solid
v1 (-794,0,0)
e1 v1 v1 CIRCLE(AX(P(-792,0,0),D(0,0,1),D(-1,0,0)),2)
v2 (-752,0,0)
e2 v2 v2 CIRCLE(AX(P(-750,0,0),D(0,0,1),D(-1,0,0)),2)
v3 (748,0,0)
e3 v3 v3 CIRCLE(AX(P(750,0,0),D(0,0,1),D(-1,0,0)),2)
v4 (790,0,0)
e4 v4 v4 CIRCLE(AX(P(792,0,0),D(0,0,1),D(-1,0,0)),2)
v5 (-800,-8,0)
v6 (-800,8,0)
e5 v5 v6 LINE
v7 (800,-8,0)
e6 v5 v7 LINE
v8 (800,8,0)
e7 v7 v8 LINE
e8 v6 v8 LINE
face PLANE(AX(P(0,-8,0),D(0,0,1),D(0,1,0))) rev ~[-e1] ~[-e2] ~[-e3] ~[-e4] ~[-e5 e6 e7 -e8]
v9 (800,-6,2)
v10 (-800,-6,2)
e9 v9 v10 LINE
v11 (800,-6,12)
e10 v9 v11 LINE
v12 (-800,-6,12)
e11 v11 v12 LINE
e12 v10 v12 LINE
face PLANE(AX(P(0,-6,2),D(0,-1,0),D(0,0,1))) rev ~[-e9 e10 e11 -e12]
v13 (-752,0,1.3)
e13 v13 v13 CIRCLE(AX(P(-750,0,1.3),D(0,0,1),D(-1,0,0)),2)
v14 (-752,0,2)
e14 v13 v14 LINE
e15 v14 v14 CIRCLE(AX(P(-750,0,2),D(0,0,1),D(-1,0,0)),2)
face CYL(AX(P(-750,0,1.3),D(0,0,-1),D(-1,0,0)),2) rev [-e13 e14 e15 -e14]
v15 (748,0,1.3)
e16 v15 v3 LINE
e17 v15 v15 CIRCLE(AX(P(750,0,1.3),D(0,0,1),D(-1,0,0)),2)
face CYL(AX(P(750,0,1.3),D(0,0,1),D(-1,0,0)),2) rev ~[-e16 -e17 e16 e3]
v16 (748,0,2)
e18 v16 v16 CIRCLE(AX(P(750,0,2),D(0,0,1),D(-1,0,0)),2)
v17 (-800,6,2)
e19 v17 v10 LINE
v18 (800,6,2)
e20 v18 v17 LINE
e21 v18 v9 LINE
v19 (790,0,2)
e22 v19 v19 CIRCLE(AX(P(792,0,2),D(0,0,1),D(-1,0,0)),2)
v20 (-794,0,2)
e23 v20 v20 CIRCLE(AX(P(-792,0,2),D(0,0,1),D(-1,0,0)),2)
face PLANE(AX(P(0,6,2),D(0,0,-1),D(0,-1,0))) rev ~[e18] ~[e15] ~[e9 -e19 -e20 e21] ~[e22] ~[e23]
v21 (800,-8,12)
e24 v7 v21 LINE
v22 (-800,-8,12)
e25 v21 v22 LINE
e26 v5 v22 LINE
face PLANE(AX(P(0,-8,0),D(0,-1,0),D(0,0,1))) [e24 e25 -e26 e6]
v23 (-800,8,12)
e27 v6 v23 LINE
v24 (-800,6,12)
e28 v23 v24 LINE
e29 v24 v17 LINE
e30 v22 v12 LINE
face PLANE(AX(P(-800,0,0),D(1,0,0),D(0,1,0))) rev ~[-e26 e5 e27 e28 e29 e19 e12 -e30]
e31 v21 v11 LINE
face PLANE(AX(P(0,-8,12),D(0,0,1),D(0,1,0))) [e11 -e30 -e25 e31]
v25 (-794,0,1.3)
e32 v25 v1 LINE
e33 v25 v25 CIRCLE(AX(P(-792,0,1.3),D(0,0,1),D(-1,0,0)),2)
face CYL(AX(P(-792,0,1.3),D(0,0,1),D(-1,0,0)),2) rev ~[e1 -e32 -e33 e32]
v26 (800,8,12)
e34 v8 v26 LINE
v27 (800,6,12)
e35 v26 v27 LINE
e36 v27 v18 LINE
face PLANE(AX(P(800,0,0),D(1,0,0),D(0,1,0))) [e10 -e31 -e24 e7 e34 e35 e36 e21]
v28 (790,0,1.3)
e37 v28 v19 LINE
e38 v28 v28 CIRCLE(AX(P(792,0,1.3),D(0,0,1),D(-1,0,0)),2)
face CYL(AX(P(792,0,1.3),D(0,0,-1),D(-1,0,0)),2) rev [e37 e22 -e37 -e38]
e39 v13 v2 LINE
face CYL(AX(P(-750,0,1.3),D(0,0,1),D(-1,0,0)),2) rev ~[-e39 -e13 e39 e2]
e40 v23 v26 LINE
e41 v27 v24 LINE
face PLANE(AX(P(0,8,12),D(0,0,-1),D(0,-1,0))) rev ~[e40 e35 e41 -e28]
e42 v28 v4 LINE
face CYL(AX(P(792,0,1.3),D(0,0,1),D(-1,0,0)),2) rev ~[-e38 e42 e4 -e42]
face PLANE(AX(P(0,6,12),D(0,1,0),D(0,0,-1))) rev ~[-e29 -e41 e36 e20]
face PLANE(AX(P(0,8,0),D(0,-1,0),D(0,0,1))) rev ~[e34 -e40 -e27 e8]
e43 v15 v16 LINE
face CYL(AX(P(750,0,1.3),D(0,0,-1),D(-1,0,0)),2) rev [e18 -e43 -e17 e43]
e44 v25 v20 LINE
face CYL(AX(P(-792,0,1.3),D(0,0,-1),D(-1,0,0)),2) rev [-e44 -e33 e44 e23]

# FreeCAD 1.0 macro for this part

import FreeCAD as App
import Part
import Sketcher

V = App.Vector
Q = App.Units.Quantity

doc = App.newDocument("Part")
body = doc.addObject("PartDesign::Body", "Body")

# Sketch on YZ plane
sketch1 = body.newObject("Sketcher::SketchObject", "Sketch")
sketch1.AttachmentSupport = (doc.getObject("YZ_Plane"), [""])
sketch1.MapMode = "FlatFace"
sketch1.addGeometry([
    Part.LineSegment(V(-8, 12, 0), V(-8, 0, 0)),  # 0
    Part.LineSegment(V(-8, 0, 0), V(8, 0, 0)),  # 1
    Part.LineSegment(V(8, 0, 0), V(8, 12, 0)),  # 2
    Part.LineSegment(V(8, 12, 0), V(6, 12, 0)),  # 3
    Part.LineSegment(V(6, 12, 0), V(6, 2, 0)),  # 4
    Part.LineSegment(V(6, 2, 0), V(-6, 2, 0)),  # 5
    Part.LineSegment(V(-6, 2, 0), V(-6, 12, 0)),  # 6
    Part.LineSegment(V(-6, 12, 0), V(-8, 12, 0)),  # 7
], False)
sketch1.addConstraint([
    Sketcher.Constraint("Coincident", 0, 2, 1, 1),
    Sketcher.Constraint("Coincident", 1, 2, 2, 1),
    Sketcher.Constraint("Coincident", 2, 2, 3, 1),
    Sketcher.Constraint("Coincident", 3, 2, 4, 1),
    Sketcher.Constraint("Coincident", 4, 2, 5, 1),
    Sketcher.Constraint("Coincident", 5, 2, 6, 1),
    Sketcher.Constraint("Coincident", 6, 2, 7, 1),
    Sketcher.Constraint("Coincident", 7, 2, 0, 1),
    Sketcher.Constraint("Vertical", 0),
    Sketcher.Constraint("Horizontal", 1),
    Sketcher.Constraint("Vertical", 2),
    Sketcher.Constraint("Horizontal", 3),
    Sketcher.Constraint("Vertical", 4),
    Sketcher.Constraint("Horizontal", 5),
    Sketcher.Constraint("Vertical", 6),
    Sketcher.Constraint("Horizontal", 7),
    Sketcher.Constraint("Symmetric", 0, 2, 1, 2, -1, 1),
    Sketcher.Constraint("Symmetric", 3, 2, 6, 2, -2),
    Sketcher.Constraint("Equal", 5, 0),
    Sketcher.Constraint("DistanceX", 1, 1, 1, 2, Q("16 mm")),
    Sketcher.Constraint("DistanceX", 3, 2, 3, 1, Q("2 mm")),
    Sketcher.Constraint("DistanceY", 4, 2, 4, 1, Q("10 mm")),
])
pad1 = body.newObject("PartDesign::Pad", "Pad")
pad1.Profile = sketch1
pad1.Length = 1600
pad1.Midplane = True

# Sketch on XY plane
sketch2 = body.newObject("Sketcher::SketchObject", "Sketch001")
sketch2.AttachmentSupport = (doc.getObject("XY_Plane"), [""])
sketch2.MapMode = "FlatFace"
sketch2.AttachmentOffset = App.Placement(V(0, 0, 1.3), App.Rotation())
sketch2.addGeometry([
    Part.Circle(V(-792, 0, 0), V(0, 0, 1), 2),
    Part.Circle(V(-750, 0, 0), V(0, 0, 1), 2),
    Part.Circle(V(792, 0, 0), V(0, 0, 1), 2),
    Part.Circle(V(750, 0, 0), V(0, 0, 1), 2),
], False)
sketch2.addConstraint([
    Sketcher.Constraint("Equal", 0, 1),
    Sketcher.Constraint("Equal", 1, 2),
    Sketcher.Constraint("Equal", 2, 3),
    Sketcher.Constraint("Symmetric", 0, 3, 2, 3, -1, 1),
    Sketcher.Constraint("Symmetric", 1, 3, 3, 3, -1, 1),
    Sketcher.Constraint("PointOnObject", 0, 3, -1),
    Sketcher.Constraint("PointOnObject", 1, 3, -1),
    Sketcher.Constraint("Diameter", 0, Q("4 mm")),
    Sketcher.Constraint("DistanceX", 0, 3, 1, 3, Q("42 mm")),
    Sketcher.Constraint("DistanceX", 0, 3, -1, 1, Q("792 mm")),
])
pocket1 = body.newObject("PartDesign::Pocket", "Pocket")
pocket1.Profile = sketch2
pocket1.Type = "ThroughAll"
pocket1.Midplane = True

doc.recompute()
